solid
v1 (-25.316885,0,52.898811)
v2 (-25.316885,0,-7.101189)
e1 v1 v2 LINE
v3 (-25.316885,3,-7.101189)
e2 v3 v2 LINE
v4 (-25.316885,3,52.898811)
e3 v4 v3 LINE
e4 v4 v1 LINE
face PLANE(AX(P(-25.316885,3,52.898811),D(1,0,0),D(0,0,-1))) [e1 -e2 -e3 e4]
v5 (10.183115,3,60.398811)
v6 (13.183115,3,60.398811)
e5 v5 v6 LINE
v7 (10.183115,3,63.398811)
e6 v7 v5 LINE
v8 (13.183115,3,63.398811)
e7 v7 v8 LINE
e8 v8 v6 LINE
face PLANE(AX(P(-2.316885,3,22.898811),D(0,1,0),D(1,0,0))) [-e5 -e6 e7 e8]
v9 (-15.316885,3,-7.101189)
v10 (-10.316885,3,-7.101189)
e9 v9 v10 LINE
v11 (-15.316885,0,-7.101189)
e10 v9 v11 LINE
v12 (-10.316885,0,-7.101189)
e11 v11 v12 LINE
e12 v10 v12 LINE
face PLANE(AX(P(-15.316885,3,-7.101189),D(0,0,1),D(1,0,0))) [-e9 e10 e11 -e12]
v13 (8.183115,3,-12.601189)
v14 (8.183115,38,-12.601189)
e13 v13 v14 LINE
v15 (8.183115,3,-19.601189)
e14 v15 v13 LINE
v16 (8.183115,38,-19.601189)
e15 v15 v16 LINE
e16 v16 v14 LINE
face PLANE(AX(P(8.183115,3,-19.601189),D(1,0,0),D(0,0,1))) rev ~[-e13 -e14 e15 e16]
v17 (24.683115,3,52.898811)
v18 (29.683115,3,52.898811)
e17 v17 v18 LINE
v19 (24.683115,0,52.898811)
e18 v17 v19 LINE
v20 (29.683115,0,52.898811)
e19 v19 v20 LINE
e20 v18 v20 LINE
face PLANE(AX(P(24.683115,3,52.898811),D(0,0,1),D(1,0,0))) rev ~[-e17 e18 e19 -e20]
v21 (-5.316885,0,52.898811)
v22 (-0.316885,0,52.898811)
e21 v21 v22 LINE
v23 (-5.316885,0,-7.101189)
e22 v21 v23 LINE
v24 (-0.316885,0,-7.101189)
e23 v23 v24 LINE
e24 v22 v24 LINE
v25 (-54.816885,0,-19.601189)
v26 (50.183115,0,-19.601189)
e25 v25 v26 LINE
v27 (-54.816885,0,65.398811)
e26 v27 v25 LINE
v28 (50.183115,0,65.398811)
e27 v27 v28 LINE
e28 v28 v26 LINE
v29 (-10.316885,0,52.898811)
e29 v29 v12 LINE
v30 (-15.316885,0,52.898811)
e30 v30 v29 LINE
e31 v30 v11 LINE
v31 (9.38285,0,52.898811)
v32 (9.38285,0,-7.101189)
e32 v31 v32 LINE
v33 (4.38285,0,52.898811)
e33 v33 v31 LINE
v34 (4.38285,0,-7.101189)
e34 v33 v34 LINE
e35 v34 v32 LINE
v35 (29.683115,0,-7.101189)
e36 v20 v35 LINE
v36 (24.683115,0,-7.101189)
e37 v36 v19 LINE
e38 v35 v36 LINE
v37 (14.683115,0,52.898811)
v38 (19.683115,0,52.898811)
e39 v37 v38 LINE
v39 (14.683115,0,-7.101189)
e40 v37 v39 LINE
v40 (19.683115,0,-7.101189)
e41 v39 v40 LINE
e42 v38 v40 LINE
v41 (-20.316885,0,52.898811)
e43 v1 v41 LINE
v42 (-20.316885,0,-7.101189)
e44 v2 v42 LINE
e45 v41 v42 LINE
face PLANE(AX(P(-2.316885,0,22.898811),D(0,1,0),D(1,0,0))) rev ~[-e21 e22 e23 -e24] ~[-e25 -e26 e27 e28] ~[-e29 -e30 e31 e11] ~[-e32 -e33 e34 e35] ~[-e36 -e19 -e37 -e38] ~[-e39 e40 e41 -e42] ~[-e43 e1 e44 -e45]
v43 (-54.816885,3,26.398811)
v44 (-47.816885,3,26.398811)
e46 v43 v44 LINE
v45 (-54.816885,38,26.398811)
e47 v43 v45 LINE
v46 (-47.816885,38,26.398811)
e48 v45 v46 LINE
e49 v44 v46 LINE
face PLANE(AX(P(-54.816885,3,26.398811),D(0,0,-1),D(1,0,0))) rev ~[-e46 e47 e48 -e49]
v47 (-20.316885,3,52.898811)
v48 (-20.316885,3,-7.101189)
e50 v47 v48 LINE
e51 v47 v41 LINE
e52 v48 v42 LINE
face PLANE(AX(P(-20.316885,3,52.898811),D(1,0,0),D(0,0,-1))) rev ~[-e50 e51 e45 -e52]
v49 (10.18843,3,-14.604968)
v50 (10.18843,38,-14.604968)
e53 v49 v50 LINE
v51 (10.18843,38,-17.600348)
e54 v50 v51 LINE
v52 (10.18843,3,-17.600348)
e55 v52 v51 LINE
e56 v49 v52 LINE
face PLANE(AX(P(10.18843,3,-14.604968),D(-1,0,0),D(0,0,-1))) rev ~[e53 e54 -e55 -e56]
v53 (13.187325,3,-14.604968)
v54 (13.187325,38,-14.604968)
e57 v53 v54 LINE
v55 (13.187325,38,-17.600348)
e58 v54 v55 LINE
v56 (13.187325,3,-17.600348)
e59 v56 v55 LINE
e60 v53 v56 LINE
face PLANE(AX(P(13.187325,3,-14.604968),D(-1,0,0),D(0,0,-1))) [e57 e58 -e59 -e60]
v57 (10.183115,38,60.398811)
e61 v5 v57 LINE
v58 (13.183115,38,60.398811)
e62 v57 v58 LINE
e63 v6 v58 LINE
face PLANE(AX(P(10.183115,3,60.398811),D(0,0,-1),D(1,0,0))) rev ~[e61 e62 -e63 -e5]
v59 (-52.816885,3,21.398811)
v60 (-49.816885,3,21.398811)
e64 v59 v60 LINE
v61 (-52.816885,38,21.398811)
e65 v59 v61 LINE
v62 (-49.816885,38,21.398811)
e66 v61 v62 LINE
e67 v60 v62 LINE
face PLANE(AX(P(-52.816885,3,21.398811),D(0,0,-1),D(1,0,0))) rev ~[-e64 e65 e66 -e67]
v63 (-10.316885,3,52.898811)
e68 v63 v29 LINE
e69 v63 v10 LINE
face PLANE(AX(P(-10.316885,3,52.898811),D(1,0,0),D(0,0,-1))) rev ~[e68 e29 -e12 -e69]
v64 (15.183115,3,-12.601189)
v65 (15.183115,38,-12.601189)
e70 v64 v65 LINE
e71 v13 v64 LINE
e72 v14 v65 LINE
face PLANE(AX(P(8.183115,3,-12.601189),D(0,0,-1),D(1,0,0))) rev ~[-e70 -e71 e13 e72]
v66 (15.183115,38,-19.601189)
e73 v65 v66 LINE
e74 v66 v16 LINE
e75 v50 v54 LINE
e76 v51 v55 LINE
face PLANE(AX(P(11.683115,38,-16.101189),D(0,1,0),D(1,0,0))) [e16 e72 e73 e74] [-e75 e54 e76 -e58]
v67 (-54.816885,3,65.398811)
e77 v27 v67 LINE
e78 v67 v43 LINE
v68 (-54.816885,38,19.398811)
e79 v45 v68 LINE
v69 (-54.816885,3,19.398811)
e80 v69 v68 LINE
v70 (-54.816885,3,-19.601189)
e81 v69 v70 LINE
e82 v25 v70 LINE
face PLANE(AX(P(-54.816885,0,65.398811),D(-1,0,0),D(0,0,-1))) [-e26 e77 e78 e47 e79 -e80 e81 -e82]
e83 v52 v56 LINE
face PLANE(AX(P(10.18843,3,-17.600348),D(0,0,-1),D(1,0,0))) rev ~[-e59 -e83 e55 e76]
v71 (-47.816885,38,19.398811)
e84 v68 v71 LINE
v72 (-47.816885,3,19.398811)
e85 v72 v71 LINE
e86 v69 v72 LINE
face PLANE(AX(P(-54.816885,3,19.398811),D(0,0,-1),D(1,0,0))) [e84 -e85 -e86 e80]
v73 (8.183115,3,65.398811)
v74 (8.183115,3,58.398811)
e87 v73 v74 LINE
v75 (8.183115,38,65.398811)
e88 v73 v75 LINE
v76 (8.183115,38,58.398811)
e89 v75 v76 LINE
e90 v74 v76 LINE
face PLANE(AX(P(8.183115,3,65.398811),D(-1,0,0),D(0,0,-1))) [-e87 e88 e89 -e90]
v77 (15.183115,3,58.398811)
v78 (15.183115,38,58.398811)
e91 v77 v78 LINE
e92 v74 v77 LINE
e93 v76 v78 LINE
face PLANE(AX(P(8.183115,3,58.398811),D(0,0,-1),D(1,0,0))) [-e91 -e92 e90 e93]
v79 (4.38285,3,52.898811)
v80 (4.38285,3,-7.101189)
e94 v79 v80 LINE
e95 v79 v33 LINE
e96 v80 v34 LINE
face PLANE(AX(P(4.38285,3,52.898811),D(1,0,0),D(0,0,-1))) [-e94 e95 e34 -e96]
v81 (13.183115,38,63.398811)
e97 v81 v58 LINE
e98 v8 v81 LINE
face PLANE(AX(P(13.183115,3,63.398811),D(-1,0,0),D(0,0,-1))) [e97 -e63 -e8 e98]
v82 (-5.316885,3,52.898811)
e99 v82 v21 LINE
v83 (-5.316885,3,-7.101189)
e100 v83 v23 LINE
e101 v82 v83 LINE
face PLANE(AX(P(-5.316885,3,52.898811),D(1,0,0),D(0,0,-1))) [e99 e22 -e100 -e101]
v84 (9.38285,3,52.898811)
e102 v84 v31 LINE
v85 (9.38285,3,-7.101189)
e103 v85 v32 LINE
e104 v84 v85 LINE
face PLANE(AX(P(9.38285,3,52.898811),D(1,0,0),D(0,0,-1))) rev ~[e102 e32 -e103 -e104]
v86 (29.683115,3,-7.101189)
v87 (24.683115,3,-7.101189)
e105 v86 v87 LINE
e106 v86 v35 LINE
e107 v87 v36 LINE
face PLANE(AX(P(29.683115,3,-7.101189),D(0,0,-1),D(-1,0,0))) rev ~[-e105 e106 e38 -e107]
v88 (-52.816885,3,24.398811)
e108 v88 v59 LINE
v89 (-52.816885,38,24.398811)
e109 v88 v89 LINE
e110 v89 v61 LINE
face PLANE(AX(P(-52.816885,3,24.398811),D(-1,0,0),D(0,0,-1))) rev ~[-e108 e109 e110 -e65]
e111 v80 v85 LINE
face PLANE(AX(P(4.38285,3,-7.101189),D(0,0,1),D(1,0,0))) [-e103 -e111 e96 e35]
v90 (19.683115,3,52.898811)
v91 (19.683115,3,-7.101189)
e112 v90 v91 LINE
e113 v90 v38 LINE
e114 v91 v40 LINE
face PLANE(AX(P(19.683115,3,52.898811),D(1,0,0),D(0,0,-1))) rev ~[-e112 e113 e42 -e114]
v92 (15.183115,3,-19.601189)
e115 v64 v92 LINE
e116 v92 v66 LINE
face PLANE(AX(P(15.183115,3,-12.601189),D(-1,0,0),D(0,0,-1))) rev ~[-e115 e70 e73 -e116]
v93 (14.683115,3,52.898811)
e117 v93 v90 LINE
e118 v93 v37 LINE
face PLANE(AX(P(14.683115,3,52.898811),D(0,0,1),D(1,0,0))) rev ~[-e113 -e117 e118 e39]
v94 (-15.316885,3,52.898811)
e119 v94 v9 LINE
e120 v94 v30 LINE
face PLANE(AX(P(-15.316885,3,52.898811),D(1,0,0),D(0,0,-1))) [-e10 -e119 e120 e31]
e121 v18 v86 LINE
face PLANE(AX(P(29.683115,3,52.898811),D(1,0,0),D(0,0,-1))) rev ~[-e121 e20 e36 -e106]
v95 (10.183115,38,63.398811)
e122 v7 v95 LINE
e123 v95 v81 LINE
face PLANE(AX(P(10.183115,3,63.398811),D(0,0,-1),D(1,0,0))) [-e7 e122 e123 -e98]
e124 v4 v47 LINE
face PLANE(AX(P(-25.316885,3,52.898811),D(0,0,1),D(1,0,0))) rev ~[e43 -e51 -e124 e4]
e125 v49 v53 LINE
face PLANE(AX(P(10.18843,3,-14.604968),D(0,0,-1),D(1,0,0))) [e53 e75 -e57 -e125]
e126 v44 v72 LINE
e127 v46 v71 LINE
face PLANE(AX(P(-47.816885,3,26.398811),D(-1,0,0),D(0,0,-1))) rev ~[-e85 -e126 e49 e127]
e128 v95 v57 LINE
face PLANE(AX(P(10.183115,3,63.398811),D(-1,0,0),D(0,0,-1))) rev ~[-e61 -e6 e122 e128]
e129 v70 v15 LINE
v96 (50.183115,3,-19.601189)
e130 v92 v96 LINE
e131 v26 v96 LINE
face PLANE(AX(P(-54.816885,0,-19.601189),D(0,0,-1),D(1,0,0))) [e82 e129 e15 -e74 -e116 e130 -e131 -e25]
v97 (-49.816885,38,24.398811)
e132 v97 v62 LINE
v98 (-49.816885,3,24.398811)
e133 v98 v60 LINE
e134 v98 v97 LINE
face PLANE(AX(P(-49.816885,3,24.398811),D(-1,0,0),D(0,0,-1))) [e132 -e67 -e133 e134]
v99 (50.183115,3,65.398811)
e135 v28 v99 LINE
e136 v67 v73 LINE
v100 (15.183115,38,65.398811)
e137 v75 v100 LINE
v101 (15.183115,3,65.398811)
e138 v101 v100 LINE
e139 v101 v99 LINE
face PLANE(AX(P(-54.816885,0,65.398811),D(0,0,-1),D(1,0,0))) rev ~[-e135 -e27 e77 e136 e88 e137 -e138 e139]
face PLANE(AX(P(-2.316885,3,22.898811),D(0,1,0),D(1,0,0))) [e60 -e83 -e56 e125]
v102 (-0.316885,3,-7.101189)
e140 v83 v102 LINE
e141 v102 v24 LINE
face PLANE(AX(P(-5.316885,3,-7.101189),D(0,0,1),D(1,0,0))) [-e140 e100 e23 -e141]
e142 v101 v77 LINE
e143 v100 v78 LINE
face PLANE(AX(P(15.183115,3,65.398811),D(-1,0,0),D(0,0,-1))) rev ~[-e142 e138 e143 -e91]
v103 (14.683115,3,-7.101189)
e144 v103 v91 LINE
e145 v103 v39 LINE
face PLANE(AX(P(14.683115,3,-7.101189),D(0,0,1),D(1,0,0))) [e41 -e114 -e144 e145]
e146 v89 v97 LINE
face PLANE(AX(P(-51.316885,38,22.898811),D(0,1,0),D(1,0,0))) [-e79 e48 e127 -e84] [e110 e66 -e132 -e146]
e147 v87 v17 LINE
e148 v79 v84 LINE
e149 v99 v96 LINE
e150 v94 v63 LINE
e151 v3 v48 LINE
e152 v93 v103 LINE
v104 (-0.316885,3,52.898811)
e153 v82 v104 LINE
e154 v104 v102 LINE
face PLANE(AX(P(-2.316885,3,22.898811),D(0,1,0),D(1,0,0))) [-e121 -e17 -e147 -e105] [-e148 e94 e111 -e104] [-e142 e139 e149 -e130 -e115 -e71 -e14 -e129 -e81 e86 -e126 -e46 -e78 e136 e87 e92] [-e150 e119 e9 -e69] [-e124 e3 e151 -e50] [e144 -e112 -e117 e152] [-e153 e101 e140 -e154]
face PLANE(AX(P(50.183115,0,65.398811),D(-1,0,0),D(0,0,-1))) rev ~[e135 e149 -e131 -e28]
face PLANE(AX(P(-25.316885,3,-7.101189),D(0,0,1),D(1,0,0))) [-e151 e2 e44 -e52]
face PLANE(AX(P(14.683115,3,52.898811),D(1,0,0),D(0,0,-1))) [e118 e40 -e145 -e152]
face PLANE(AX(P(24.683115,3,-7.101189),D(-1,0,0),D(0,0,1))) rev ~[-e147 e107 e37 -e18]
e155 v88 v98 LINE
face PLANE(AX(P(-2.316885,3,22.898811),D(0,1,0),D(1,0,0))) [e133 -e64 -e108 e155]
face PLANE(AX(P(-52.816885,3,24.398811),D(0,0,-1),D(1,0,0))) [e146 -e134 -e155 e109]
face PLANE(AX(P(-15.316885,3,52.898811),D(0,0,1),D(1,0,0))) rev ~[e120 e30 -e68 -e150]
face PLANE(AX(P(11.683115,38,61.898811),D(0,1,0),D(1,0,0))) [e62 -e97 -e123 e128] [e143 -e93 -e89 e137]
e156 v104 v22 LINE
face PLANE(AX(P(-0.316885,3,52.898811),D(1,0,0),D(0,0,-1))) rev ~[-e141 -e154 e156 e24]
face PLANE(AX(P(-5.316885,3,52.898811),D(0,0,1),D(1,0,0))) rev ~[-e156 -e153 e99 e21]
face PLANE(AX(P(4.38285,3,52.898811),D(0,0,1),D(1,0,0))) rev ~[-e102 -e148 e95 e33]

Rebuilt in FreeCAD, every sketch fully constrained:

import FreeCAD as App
import Part
import Sketcher
from FreeCAD import Vector
Q = App.Units.Quantity


def add_polygon(sketch, points):
    """Adds a closed chain of lines whose ends are joined by coincident constraints."""
    first, n = sketch.GeometryCount, len(points)
    for a, b in zip(points, points[1:] + points[:1]):
        sketch.addGeometry(Part.LineSegment(App.Vector(*a, 0), App.Vector(*b, 0)), False)
    for i in range(n):
        sketch.addConstraint(Sketcher.Constraint("Coincident", first + i, 2, first + (i + 1) % n, 1))

doc = App.newDocument("Part")
body = doc.addObject("PartDesign::Body", "Body")

# Sketch on XZ plane
sketch1 = doc.addObject("Sketcher::SketchObject", "Sketch")
body.addObject(sketch1)
sketch1.AttachmentSupport = (doc.XZ_Plane, [""])
sketch1.MapMode = "FlatFace"
add_polygon(sketch1, [(-55, -20), (-55, 65), (50, 65), (50, -20)])  # lines 0-3
sketch1.addConstraint([
    Sketcher.Constraint("Vertical", 0),
    Sketcher.Constraint("Horizontal", 1),
    Sketcher.Constraint("Vertical", 2),
    Sketcher.Constraint("Horizontal", 3),
    Sketcher.Constraint("DistanceX", 1, 1, 1, 2, Q("105 mm")),
    Sketcher.Constraint("DistanceY", 0, 1, 0, 2, Q("85 mm")),
    Sketcher.Constraint("DistanceY", -1, 1, 0, 2, Q("65.398811 mm")),
    Sketcher.Constraint("DistanceX", 0, 2, -1, 1, Q("54.816885 mm")),
])
pad1 = doc.addObject("PartDesign::Pad", "Pad")
body.addObject(pad1)
pad1.Profile = sketch1
pad1.Length = 3
pad1.Reversed = True

# Sketch on XZ plane
sketch2 = doc.addObject("Sketcher::SketchObject", "Sketch001")
body.addObject(sketch2)
sketch2.AttachmentSupport = (doc.XZ_Plane, [""])
sketch2.MapMode = "FlatFace"
sketch2.AttachmentOffset = App.Placement(Vector(0, 0, -3), App.Rotation())
add_polygon(sketch2, [(8.2, 58.4), (8.2, 65.4), (15.2, 65.4), (15.2, 58.4)])  # lines 0-3
add_polygon(sketch2, [(13.2, 63.4), (10.2, 63.4), (10.2, 60.4), (13.2, 60.4)])  # lines 4-7
sketch2.addConstraint([
    Sketcher.Constraint("Vertical", 0),
    Sketcher.Constraint("Horizontal", 1),
    Sketcher.Constraint("Vertical", 2),
    Sketcher.Constraint("Horizontal", 3),
    Sketcher.Constraint("Horizontal", 4),
    Sketcher.Constraint("Vertical", 5),
    Sketcher.Constraint("Horizontal", 6),
    Sketcher.Constraint("Vertical", 7),
    Sketcher.Constraint("Equal", 3, 0),
    Sketcher.Constraint("Equal", 6, 5),
    Sketcher.Constraint("DistanceX", 1, 1, 1, 2, Q("7 mm")),
    Sketcher.Constraint("DistanceX", 4, 2, 4, 1, Q("3 mm")),
    Sketcher.Constraint("DistanceX", 0, 2, 4, 2, Q("2 mm")),
    Sketcher.Constraint("DistanceY", 4, 2, 0, 2, Q("2 mm")),
    Sketcher.Constraint("DistanceY", -1, 1, 0, 2, Q("65.398811 mm")),
    Sketcher.Constraint("DistanceX", -1, 1, 0, 2, Q("8.183115 mm")),
])
pad2 = doc.addObject("PartDesign::Pad", "Pad001")
body.addObject(pad2)
pad2.Profile = sketch2
pad2.Length = 35
pad2.Reversed = True

# Sketch on XZ plane
sketch3 = doc.addObject("Sketcher::SketchObject", "Sketch002")
body.addObject(sketch3)
sketch3.AttachmentSupport = (doc.XZ_Plane, [""])
sketch3.MapMode = "FlatFace"
sketch3.AttachmentOffset = App.Placement(Vector(0, 0, -3), App.Rotation())
add_polygon(sketch3, [(15.2, -12.6), (15.2, -19.6), (8.2, -19.6), (8.2, -12.6)])  # lines 0-3
add_polygon(sketch3, [(13.2, -14.6), (10.2, -14.6), (10.2, -17.6), (13.2, -17.6)])  # lines 4-7
sketch3.addConstraint([
    Sketcher.Constraint("Vertical", 0),
    Sketcher.Constraint("Horizontal", 1),
    Sketcher.Constraint("Vertical", 2),
    Sketcher.Constraint("Horizontal", 3),
    Sketcher.Constraint("Horizontal", 4),
    Sketcher.Constraint("Vertical", 5),
    Sketcher.Constraint("Horizontal", 6),
    Sketcher.Constraint("Vertical", 7),
    Sketcher.Constraint("Equal", 3, 0),
    Sketcher.Constraint("DistanceX", 1, 2, 1, 1, Q("7 mm")),
    Sketcher.Constraint("DistanceY", 5, 2, 5, 1, Q("2.995381 mm")),
    Sketcher.Constraint("DistanceX", 4, 2, 4, 1, Q("2.998895 mm")),
    Sketcher.Constraint("DistanceY", 0, 2, -1, 1, Q("19.601189 mm")),
    Sketcher.Constraint("DistanceX", -1, 1, 4, 2, Q("10.18843 mm")),
    Sketcher.Constraint("DistanceY", 5, 2, -1, 1, Q("17.600348 mm")),
    Sketcher.Constraint("DistanceX", 6, 2, 0, 2, Q("1.99579 mm")),
])
pad3 = doc.addObject("PartDesign::Pad", "Pad002")
body.addObject(pad3)
pad3.Profile = sketch3
pad3.Length = 35
pad3.Reversed = True

# Sketch on XZ plane
sketch4 = doc.addObject("Sketcher::SketchObject", "Sketch003")
body.addObject(sketch4)
sketch4.AttachmentSupport = (doc.XZ_Plane, [""])
sketch4.MapMode = "FlatFace"
sketch4.AttachmentOffset = App.Placement(Vector(0, 0, -3), App.Rotation())
add_polygon(sketch4, [(-54.8, 19.4), (-54.8, 26.4), (-47.8, 26.4), (-47.8, 19.4)])  # lines 0-3
add_polygon(sketch4, [(-49.8, 24.4), (-52.8, 24.4), (-52.8, 21.4), (-49.8, 21.4)])  # lines 4-7
sketch4.addConstraint([
    Sketcher.Constraint("Vertical", 0),
    Sketcher.Constraint("Horizontal", 1),
    Sketcher.Constraint("Vertical", 2),
    Sketcher.Constraint("Horizontal", 3),
    Sketcher.Constraint("Horizontal", 4),
    Sketcher.Constraint("Vertical", 5),
    Sketcher.Constraint("Horizontal", 6),
    Sketcher.Constraint("Vertical", 7),
    Sketcher.Constraint("Equal", 3, 0),
    Sketcher.Constraint("Equal", 6, 5),
    Sketcher.Constraint("DistanceX", 1, 1, 1, 2, Q("7 mm")),
    Sketcher.Constraint("DistanceX", 4, 2, 4, 1, Q("3 mm")),
    Sketcher.Constraint("DistanceX", 0, 2, 4, 2, Q("2 mm")),
    Sketcher.Constraint("DistanceY", 4, 2, 0, 2, Q("2 mm")),
    Sketcher.Constraint("DistanceY", -1, 1, 0, 2, Q("26.398811 mm")),
    Sketcher.Constraint("DistanceX", 0, 2, -1, 1, Q("54.816885 mm")),
])
pad4 = doc.addObject("PartDesign::Pad", "Pad003")
body.addObject(pad4)
pad4.Profile = sketch4
pad4.Length = 35
pad4.Reversed = True

# Sketch on XZ plane
sketch5 = doc.addObject("Sketcher::SketchObject", "Sketch004")
body.addObject(sketch5)
sketch5.AttachmentSupport = (doc.XZ_Plane, [""])
sketch5.MapMode = "FlatFace"
sketch5.AttachmentOffset = App.Placement(Vector(0, 0, -3), App.Rotation())
add_polygon(sketch5, [(30, 53), (30, -7), (25, -7), (25, 53)])  # lines 0-3
sketch5.addConstraint([
    Sketcher.Constraint("Vertical", 0),
    Sketcher.Constraint("Horizontal", 1),
    Sketcher.Constraint("Vertical", 2),
    Sketcher.Constraint("Horizontal", 3),
    Sketcher.Constraint("DistanceX", 1, 2, 1, 1, Q("5 mm")),
    Sketcher.Constraint("DistanceY", 0, 2, 0, 1, Q("60 mm")),
    Sketcher.Constraint("DistanceY", 0, 2, -1, 1, Q("7.101189 mm")),
    Sketcher.Constraint("DistanceX", -1, 1, 0, 2, Q("29.683115 mm")),
])
pocket1 = doc.addObject("PartDesign::Pocket", "Pocket")
body.addObject(pocket1)
pocket1.Profile = sketch5
pocket1.Length = 6
pocket1.Reversed = True

# Sketch on XZ plane
sketch6 = doc.addObject("Sketcher::SketchObject", "Sketch005")
body.addObject(sketch6)
sketch6.AttachmentSupport = (doc.XZ_Plane, [""])
sketch6.MapMode = "FlatFace"
sketch6.AttachmentOffset = App.Placement(Vector(0, 0, -3), App.Rotation())
add_polygon(sketch6, [(15, -7), (15, 53), (20, 53), (20, -7)])  # lines 0-3
add_polygon(sketch6, [(-5, -7), (-5, 53), (0, 53), (0, -7)])  # lines 4-7
add_polygon(sketch6, [(-25, -7), (-25, 53), (-20, 53), (-20, -7)])  # lines 8-11
add_polygon(sketch6, [(-15, -7), (-15, 53), (-10, 53), (-10, -7)])  # lines 12-15
sketch6.addConstraint([
    Sketcher.Constraint("Vertical", 0),
    Sketcher.Constraint("Horizontal", 1),
    Sketcher.Constraint("Vertical", 2),
    Sketcher.Constraint("Horizontal", 3),
    Sketcher.Constraint("Vertical", 4),
    Sketcher.Constraint("Horizontal", 5),
    Sketcher.Constraint("Vertical", 6),
    Sketcher.Constraint("Horizontal", 7),
    Sketcher.Constraint("Vertical", 8),
    Sketcher.Constraint("Horizontal", 9),
    Sketcher.Constraint("Vertical", 10),
    Sketcher.Constraint("Horizontal", 11),
    Sketcher.Constraint("Vertical", 12),
    Sketcher.Constraint("Horizontal", 13),
    Sketcher.Constraint("Vertical", 14),
    Sketcher.Constraint("Horizontal", 15),
    Sketcher.Constraint("Horizontal", 1, 2, 4, 2),
    Sketcher.Constraint("Horizontal", 3, 2, 6, 2),
    Sketcher.Constraint("Horizontal", 5, 2, 8, 2),
    Sketcher.Constraint("Horizontal", 7, 2, 10, 2),
    Sketcher.Constraint("Horizontal", 9, 2, 12, 2),
    Sketcher.Constraint("Horizontal", 11, 2, 14, 2),
    Sketcher.Constraint("Equal", 3, 5),
    Sketcher.Constraint("Equal", 7, 9),
    Sketcher.Constraint("Equal", 11, 13),
    Sketcher.Constraint("DistanceX", 1, 1, 1, 2, Q("5 mm")),
    Sketcher.Constraint("DistanceY", 0, 1, 0, 2, Q("60 mm")),
    Sketcher.Constraint("DistanceX", 4, 2, 0, 2, Q("20 mm")),
    Sketcher.Constraint("DistanceX", 8, 2, 4, 2, Q("20 mm")),
    Sketcher.Constraint("DistanceX", 9, 2, 12, 2, Q("5 mm")),
    Sketcher.Constraint("DistanceY", -1, 1, 0, 2, Q("52.898811 mm")),
    Sketcher.Constraint("DistanceX", -1, 1, 0, 2, Q("14.683115 mm")),
])
pocket2 = doc.addObject("PartDesign::Pocket", "Pocket001")
body.addObject(pocket2)
pocket2.Profile = sketch6
pocket2.Length = 33
pocket2.Reversed = True

# Sketch on XZ plane
sketch7 = doc.addObject("Sketcher::SketchObject", "Sketch006")
body.addObject(sketch7)
sketch7.AttachmentSupport = (doc.XZ_Plane, [""])
sketch7.MapMode = "FlatFace"
sketch7.AttachmentOffset = App.Placement(Vector(0, 0, -3), App.Rotation())
add_polygon(sketch7, [(4.4, -7.1), (4.4, 52.9), (9.4, 52.9), (9.4, -7.1)])  # lines 0-3
sketch7.addConstraint([
    Sketcher.Constraint("Vertical", 0),
    Sketcher.Constraint("Horizontal", 1),
    Sketcher.Constraint("Vertical", 2),
    Sketcher.Constraint("Horizontal", 3),
    Sketcher.Constraint("DistanceX", 1, 1, 1, 2, Q("5 mm")),
    Sketcher.Constraint("DistanceY", 0, 1, 0, 2, Q("60 mm")),
    Sketcher.Constraint("DistanceX", -1, 1, 0, 2, Q("4.38285 mm")),
    Sketcher.Constraint("DistanceY", -1, 1, 0, 2, Q("52.898811 mm")),
])
pocket3 = doc.addObject("PartDesign::Pocket", "Pocket002")
body.addObject(pocket3)
pocket3.Profile = sketch7
pocket3.Length = 15
pocket3.Reversed = True

doc.recompute()
